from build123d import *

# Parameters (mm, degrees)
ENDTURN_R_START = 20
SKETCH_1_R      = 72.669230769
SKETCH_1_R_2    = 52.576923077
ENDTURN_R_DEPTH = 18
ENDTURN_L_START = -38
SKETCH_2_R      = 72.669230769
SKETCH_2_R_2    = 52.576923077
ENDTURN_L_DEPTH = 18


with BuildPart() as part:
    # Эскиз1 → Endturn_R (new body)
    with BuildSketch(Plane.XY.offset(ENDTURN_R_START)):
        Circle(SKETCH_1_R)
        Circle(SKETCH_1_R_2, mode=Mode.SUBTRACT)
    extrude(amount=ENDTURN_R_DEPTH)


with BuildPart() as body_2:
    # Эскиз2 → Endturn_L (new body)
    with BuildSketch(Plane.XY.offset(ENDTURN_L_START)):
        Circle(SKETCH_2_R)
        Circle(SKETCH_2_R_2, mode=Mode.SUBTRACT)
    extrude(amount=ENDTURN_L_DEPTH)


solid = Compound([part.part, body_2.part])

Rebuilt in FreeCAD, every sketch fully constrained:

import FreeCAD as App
import Part
import Sketcher

V = App.Vector

doc = App.newDocument("Part")
params = doc.addObject("Spreadsheet::Sheet", "Params")
for row, (alias, value) in enumerate([
    ("pad1_length", "18 mm"),
    ("pad2_length", "18 mm"),
], start=1):
    params.set(f"A{row}", alias)
    params.set(f"B{row}", "=" + value)
    params.setAlias(f"B{row}", alias)

body = doc.addObject("PartDesign::Body", "Body")

sketch1 = body.newObject("Sketcher::SketchObject", "Sketch")
sketch1.AttachmentSupport = (doc.getObject("XY_Plane"), [""])
sketch1.MapMode = "FlatFace"
sketch1.AttachmentOffset = App.Placement(V(0, 0, 20), App.Rotation())
sketch1.addGeometry(Part.Circle(V(0, 0, 0), V(0, 0, 1), 72.669231), False)
sketch1.addGeometry(Part.Circle(V(0, 0, 0), V(0, 0, 1), 52.576923), False)
sketch1.addConstraint(Sketcher.Constraint("Coincident", 0, 3, -1, 1))
sketch1.addConstraint(Sketcher.Constraint("Coincident", 1, 3, -1, 1))
sketch1.addConstraint(Sketcher.Constraint("Diameter", 0, 145.338462))
sketch1.addConstraint(Sketcher.Constraint("Diameter", 1, 105.153846))
pad1 = body.newObject("PartDesign::Pad", "Pad")
pad1.Profile = sketch1
pad1.setExpression("Length", "Params.pad1_length")
body2 = doc.addObject("PartDesign::Body", "Body001")

sketch2 = body2.newObject("Sketcher::SketchObject", "Sketch001")
sketch2.AttachmentSupport = (doc.getObject("XY_Plane001"), [""])
sketch2.MapMode = "FlatFace"
sketch2.AttachmentOffset = App.Placement(V(0, 0, -38), App.Rotation())
sketch2.addGeometry(Part.Circle(V(0, 0, 0), V(0, 0, 1), 72.669231), False)
sketch2.addGeometry(Part.Circle(V(0, 0, 0), V(0, 0, 1), 52.576923), False)
sketch2.addConstraint(Sketcher.Constraint("Coincident", 0, 3, -1, 1))
sketch2.addConstraint(Sketcher.Constraint("Coincident", 1, 3, -1, 1))
sketch2.addConstraint(Sketcher.Constraint("Diameter", 0, 145.338462))
sketch2.addConstraint(Sketcher.Constraint("Diameter", 1, 105.153846))
pad2 = body2.newObject("PartDesign::Pad", "Pad001")
pad2.Profile = sketch2
pad2.setExpression("Length", "Params.pad2_length")

doc.recompute()
